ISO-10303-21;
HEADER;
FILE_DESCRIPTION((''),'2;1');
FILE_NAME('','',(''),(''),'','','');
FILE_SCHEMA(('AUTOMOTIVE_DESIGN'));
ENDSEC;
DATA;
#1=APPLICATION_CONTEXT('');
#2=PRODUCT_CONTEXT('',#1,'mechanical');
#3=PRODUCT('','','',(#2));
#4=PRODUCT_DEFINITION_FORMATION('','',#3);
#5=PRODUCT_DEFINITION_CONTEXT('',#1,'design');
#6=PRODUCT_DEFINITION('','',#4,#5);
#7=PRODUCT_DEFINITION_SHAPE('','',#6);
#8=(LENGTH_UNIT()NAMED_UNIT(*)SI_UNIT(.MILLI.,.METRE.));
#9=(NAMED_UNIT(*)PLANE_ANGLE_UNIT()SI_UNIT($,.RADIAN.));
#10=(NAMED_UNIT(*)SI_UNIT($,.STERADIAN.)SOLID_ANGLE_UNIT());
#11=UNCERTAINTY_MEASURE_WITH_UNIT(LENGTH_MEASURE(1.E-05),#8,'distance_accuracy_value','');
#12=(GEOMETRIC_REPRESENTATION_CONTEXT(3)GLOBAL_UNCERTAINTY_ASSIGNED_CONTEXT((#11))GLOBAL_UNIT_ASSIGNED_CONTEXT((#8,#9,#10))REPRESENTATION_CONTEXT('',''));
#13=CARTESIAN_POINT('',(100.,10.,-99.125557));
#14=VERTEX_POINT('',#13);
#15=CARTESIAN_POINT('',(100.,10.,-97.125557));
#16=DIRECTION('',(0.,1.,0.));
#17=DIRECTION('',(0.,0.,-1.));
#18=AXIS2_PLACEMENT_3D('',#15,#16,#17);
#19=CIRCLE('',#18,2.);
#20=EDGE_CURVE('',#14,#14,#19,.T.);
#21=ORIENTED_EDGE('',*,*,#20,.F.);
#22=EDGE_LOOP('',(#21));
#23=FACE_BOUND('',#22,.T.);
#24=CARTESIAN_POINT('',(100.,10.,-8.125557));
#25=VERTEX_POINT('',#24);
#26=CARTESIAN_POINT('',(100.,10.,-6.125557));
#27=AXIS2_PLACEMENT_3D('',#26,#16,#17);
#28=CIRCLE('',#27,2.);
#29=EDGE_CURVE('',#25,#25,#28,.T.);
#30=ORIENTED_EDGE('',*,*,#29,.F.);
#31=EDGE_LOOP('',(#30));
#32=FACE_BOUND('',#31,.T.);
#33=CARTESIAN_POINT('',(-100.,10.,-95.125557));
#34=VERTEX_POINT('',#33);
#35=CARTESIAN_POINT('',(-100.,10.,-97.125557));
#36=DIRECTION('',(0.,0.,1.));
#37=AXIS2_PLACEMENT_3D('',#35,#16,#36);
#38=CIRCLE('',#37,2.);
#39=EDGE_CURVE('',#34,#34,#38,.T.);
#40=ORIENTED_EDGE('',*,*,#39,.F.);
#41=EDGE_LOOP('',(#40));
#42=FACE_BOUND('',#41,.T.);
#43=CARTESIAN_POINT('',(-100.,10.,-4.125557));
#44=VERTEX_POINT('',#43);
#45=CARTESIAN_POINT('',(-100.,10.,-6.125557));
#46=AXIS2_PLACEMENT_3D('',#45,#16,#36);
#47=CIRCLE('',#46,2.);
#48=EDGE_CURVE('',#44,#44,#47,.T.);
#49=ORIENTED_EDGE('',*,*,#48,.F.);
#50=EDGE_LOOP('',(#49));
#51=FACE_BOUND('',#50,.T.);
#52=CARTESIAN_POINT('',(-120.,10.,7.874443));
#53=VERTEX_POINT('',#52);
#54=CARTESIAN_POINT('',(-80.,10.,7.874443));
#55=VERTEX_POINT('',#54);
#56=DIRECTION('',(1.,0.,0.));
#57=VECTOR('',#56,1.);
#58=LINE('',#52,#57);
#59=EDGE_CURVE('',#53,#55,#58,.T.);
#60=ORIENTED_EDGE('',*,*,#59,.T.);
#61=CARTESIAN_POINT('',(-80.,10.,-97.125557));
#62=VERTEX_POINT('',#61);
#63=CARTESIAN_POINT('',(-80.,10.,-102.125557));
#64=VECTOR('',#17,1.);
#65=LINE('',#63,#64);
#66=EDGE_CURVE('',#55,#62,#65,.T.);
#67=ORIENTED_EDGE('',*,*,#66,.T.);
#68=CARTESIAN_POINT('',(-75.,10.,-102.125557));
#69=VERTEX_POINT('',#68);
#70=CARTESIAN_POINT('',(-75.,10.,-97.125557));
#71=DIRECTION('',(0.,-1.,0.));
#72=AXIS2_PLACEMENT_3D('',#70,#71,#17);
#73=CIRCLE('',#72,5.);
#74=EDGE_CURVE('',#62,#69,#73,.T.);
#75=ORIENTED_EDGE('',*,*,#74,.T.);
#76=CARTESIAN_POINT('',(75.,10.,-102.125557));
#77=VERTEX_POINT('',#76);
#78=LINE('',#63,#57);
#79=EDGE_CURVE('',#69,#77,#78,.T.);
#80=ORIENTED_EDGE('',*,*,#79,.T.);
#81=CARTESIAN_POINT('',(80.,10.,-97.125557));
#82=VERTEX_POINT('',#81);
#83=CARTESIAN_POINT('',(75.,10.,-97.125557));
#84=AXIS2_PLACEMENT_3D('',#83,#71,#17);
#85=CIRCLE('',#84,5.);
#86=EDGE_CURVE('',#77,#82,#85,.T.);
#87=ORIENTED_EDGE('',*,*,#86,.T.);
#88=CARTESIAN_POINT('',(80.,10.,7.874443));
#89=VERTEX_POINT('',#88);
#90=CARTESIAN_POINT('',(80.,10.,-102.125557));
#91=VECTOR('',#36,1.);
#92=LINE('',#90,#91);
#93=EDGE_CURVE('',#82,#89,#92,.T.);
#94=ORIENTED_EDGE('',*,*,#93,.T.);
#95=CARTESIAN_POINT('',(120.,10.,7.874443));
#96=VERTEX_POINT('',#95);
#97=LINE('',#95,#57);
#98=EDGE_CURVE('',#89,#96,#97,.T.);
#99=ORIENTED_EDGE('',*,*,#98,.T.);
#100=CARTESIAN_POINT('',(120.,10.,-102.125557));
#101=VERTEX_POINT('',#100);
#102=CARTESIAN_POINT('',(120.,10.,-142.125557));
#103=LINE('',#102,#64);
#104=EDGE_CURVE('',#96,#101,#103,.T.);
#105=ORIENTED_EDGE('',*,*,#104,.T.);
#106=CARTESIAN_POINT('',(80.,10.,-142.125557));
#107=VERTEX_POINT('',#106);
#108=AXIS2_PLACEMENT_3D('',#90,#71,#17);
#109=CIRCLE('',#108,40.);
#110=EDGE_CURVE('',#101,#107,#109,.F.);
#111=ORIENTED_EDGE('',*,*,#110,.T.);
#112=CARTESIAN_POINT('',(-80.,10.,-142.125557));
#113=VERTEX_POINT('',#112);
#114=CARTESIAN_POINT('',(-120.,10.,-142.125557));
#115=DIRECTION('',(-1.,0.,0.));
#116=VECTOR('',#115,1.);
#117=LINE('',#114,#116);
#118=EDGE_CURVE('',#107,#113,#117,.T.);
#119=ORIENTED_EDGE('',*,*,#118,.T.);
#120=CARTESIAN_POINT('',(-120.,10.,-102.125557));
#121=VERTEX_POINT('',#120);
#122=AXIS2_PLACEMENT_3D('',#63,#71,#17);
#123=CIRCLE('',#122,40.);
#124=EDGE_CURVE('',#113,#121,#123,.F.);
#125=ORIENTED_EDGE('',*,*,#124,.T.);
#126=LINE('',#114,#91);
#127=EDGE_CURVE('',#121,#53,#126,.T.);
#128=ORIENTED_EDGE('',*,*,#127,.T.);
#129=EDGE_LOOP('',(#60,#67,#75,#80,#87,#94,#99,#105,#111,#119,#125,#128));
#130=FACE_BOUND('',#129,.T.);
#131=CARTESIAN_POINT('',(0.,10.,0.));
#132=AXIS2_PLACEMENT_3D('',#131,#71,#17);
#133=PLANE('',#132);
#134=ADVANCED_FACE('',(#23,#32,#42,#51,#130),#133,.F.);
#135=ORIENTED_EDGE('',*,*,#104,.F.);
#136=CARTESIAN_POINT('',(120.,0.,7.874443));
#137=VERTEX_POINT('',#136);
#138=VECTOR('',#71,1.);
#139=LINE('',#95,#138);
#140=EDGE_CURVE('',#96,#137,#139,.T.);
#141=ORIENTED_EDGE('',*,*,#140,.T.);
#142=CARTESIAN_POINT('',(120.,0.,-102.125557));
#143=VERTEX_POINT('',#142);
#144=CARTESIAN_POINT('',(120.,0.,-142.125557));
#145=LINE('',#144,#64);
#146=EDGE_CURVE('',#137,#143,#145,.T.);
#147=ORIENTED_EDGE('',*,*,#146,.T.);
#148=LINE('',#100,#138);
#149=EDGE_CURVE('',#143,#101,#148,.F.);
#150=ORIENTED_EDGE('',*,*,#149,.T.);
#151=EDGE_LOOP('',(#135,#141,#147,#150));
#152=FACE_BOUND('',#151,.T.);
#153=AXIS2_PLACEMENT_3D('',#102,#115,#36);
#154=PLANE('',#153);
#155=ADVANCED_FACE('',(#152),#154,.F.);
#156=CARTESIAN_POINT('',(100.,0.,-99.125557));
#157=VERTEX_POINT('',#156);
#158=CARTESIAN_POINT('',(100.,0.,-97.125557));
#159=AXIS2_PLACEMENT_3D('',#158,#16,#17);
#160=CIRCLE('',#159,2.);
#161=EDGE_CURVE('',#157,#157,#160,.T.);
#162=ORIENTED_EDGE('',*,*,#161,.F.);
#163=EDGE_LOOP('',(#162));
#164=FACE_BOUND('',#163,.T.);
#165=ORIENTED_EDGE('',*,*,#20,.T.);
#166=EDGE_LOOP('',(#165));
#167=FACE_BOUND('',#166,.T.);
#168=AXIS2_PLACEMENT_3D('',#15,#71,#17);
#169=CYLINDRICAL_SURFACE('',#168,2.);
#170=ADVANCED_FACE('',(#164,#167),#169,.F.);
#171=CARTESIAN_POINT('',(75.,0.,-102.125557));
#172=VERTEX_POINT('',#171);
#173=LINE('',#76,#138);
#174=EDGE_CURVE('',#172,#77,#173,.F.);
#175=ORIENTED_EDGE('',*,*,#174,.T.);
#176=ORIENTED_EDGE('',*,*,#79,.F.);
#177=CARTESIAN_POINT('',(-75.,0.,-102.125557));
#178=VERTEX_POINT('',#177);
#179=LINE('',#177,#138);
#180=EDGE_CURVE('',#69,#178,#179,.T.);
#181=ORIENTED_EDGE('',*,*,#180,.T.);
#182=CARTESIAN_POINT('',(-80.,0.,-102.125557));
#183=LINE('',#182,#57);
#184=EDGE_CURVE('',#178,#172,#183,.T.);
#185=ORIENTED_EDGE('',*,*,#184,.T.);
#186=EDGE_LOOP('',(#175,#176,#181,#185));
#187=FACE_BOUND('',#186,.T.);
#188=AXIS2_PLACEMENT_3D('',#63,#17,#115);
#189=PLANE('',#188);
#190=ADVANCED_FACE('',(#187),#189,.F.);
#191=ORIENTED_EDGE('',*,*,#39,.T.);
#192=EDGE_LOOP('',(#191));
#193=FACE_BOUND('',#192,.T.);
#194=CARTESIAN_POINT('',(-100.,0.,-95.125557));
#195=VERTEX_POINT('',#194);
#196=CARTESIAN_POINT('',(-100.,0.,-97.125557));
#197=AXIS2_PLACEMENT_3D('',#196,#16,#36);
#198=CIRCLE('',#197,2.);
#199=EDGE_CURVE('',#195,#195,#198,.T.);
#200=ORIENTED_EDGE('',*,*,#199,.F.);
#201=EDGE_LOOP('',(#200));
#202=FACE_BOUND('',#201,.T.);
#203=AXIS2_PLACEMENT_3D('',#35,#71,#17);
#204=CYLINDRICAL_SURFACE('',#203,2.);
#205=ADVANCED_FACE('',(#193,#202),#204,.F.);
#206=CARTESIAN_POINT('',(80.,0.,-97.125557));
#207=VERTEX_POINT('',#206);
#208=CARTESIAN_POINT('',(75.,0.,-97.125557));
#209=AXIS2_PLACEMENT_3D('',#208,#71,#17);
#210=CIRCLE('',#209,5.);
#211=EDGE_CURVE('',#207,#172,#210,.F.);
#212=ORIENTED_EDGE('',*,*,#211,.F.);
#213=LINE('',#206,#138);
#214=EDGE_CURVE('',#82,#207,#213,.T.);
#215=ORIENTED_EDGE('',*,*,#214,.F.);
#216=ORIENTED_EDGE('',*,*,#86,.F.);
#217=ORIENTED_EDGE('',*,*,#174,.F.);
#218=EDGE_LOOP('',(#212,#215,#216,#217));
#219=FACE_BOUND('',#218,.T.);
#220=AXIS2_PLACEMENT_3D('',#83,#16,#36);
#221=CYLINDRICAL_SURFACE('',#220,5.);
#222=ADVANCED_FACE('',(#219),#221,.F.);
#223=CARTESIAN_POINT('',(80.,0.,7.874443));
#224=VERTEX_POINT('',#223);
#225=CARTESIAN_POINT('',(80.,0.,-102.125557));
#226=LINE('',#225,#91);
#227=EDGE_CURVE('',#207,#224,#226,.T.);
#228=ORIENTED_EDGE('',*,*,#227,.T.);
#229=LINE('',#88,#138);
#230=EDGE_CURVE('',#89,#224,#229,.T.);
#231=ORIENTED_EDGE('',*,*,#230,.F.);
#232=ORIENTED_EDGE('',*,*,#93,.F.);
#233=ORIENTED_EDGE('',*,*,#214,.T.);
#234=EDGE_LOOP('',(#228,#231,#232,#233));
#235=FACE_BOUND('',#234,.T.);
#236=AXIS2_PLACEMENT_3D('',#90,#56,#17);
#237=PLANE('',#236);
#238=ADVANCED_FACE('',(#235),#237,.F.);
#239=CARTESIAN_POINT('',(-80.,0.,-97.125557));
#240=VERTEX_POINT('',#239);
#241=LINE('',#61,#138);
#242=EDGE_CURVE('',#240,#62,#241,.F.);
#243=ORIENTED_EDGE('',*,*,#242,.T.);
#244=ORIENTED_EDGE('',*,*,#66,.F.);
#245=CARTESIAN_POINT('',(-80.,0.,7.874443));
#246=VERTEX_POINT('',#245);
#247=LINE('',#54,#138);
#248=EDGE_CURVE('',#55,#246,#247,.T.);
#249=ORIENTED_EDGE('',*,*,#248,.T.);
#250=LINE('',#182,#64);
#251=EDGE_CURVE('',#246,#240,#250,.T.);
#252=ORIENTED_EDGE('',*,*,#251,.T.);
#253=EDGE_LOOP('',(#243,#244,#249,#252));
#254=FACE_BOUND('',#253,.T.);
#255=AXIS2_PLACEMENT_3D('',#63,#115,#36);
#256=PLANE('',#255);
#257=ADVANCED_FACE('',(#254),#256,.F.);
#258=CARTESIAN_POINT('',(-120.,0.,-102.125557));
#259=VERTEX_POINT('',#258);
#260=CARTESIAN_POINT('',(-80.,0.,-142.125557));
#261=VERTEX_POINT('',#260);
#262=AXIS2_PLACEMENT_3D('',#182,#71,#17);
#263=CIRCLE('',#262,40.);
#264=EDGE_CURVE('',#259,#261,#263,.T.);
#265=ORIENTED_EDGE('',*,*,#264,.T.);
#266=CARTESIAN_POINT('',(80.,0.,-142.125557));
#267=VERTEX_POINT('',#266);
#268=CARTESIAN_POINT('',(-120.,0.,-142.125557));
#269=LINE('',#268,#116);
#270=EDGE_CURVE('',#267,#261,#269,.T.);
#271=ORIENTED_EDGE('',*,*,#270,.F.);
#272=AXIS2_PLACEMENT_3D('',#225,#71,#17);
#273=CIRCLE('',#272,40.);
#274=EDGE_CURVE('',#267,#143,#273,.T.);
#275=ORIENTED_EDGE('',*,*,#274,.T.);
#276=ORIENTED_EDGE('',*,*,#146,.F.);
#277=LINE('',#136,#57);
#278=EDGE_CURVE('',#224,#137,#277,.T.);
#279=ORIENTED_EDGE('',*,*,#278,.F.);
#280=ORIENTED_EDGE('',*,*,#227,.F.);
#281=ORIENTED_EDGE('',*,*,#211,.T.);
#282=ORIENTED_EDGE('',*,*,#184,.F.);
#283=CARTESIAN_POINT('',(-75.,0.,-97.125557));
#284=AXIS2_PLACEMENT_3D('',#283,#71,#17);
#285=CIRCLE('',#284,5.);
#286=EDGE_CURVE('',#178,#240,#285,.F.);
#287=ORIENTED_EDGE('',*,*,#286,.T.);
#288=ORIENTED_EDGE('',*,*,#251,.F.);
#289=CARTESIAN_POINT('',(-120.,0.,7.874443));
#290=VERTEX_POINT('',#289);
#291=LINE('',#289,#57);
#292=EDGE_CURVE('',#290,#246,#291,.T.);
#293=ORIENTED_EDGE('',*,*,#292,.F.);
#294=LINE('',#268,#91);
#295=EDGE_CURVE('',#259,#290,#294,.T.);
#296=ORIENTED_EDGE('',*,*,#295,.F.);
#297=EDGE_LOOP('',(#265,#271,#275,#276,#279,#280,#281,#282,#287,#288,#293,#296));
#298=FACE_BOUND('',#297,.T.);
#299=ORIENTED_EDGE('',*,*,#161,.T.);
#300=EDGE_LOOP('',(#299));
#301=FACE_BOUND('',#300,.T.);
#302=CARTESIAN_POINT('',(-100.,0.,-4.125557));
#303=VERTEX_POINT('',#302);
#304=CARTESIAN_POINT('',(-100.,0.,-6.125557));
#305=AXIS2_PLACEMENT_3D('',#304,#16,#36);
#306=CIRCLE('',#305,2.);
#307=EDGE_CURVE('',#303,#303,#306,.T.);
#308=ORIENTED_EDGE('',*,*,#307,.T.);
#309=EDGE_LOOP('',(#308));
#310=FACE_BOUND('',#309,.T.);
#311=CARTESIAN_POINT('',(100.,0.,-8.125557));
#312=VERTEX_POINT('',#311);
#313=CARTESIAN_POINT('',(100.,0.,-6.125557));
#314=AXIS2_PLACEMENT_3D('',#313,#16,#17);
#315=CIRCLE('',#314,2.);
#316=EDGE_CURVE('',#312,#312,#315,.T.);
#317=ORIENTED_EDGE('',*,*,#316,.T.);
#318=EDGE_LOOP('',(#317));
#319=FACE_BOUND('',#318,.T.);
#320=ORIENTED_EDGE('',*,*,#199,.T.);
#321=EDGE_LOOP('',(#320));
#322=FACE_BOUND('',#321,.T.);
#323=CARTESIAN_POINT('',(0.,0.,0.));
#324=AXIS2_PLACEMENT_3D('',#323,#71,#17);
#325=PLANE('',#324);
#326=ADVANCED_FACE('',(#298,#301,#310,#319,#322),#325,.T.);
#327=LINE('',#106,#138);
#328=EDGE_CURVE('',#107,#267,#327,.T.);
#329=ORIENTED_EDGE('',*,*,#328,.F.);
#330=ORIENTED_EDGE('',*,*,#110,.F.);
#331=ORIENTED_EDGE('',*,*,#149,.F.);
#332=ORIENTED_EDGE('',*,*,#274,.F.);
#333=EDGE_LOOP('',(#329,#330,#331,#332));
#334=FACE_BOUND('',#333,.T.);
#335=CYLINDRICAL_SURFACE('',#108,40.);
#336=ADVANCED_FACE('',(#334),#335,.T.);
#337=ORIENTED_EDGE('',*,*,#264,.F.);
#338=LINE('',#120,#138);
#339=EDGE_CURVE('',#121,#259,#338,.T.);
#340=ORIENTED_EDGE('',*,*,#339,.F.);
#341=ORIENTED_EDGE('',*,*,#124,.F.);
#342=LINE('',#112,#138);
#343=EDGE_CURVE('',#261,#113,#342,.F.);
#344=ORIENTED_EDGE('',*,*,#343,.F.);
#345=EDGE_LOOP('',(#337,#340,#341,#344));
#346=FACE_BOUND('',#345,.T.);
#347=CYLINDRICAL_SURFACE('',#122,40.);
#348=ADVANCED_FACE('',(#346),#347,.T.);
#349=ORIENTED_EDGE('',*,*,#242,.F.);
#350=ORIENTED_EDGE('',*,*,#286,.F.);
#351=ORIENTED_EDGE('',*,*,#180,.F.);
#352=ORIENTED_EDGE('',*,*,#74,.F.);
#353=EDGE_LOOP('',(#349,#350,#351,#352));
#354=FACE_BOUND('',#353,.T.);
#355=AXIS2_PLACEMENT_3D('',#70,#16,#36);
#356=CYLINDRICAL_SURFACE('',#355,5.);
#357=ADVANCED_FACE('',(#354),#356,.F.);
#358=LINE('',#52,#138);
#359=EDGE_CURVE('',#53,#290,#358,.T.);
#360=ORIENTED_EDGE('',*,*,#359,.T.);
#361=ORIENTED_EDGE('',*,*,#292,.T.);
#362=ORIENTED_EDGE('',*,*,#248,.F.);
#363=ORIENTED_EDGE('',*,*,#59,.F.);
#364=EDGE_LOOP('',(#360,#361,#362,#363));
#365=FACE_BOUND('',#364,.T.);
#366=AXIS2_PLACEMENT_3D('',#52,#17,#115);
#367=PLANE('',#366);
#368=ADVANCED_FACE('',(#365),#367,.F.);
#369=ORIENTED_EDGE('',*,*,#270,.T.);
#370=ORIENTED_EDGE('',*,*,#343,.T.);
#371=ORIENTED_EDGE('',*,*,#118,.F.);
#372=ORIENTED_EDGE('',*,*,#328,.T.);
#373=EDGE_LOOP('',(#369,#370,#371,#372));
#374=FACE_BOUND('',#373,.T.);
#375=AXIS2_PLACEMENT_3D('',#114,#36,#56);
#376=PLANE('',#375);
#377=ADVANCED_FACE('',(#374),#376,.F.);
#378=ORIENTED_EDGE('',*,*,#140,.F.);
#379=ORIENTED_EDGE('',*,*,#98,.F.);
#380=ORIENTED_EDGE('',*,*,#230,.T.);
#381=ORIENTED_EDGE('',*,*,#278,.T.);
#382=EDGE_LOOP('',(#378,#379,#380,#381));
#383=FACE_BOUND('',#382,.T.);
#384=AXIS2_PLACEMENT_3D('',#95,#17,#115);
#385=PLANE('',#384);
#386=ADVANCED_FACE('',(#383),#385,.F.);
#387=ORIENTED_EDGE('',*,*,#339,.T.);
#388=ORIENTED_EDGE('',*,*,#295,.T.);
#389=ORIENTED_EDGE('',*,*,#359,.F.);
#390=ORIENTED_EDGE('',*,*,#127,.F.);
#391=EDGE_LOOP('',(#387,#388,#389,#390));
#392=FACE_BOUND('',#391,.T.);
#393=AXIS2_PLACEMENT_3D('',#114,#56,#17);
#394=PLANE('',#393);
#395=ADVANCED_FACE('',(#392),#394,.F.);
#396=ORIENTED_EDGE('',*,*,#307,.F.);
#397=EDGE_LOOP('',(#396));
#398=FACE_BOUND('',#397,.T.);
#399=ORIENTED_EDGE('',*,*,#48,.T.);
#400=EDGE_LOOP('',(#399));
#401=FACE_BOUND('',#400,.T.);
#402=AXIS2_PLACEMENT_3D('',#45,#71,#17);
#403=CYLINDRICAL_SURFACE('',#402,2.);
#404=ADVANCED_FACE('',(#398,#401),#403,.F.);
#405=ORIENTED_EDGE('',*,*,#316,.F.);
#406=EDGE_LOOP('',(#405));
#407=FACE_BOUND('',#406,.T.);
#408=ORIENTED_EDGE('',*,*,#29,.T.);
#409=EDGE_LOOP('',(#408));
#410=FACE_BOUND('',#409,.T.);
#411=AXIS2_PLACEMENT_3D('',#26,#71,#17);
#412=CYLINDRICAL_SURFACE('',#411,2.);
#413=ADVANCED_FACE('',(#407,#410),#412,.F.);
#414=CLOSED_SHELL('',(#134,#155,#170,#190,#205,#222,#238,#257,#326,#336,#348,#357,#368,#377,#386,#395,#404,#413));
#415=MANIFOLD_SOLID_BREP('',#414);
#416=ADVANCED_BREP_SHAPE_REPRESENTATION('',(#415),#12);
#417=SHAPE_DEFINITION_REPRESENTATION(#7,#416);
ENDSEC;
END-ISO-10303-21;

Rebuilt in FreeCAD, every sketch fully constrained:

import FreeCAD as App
import Part
import Sketcher
from FreeCAD import Vector
Q = App.Units.Quantity


def edges_at(feature, points):
    """Names of the edges that pass closest to the given points."""
    edges = feature.Shape.Edges
    near = lambda p: min(range(len(edges)), key=lambda i: edges[i].distToShape(Part.Vertex(*p))[0])
    return sorted({f"Edge{near(p) + 1}" for p in points})


def add_polygon(sketch, points):
    """Adds a closed chain of lines whose ends are joined by coincident constraints."""
    first, n = sketch.GeometryCount, len(points)
    for a, b in zip(points, points[1:] + points[:1]):
        sketch.addGeometry(Part.LineSegment(App.Vector(*a, 0), App.Vector(*b, 0)), False)
    for i in range(n):
        sketch.addConstraint(Sketcher.Constraint("Coincident", first + i, 2, first + (i + 1) % n, 1))

doc = App.newDocument("Part")
params = doc.addObject("Spreadsheet::Sheet", "Params")
for row, (alias, value) in enumerate([
    ("sketch1_diameter", "4 mm"),
    ("sketch1_width", "40 mm"),
    ("sketch1_width2", "160 mm"),
    ("sketch1_height", "150 mm"),
    ("sketch1_height2", "110 mm"),
    ("pad1_length", "10 mm"),
    ("fillet_radius", "40 mm"),
    ("fillet2_radius", "5 mm"),
], start=1):
    params.set(f"A{row}", alias)
    params.set(f"B{row}", "=" + value)
    params.setAlias(f"B{row}", alias)

body = doc.addObject("PartDesign::Body", "Body")

# Sketch on XZ plane
sketch1 = body.newObject("Sketcher::SketchObject", "Sketch")
sketch1.AttachmentSupport = (doc.getObject("XZ_Plane"), [""])
sketch1.MapMode = "FlatFace"
add_polygon(sketch1, [(-120, -142.1), (-120, 7.9), (-80, 7.9), (-80, -102.1), (80, -102.1), (80, 7.9), (120, 7.9), (120, -142.1)])  # lines 0-7
sketch1.addGeometry(Part.Circle(Vector(-100, -6.1, 0), Vector(0, 0, 1), 2), False)  # 8
sketch1.addGeometry(Part.Circle(Vector(100, -6.1, 0), Vector(0, 0, 1), 2), False)  # 9
sketch1.addGeometry(Part.Circle(Vector(-100, -97.1, 0), Vector(0, 0, 1), 2), False)  # 10
sketch1.addGeometry(Part.Circle(Vector(100, -97.1, 0), Vector(0, 0, 1), 2), False)  # 11
sketch1.addConstraint([
    Sketcher.Constraint("Vertical", 0),
    Sketcher.Constraint("Horizontal", 1),
    Sketcher.Constraint("Vertical", 2),
    Sketcher.Constraint("Horizontal", 3),
    Sketcher.Constraint("Vertical", 4),
    Sketcher.Constraint("Horizontal", 5),
    Sketcher.Constraint("Vertical", 6),
    Sketcher.Constraint("Horizontal", 7),
    Sketcher.Constraint("Equal", 8, 9),
    Sketcher.Constraint("Equal", 9, 10),
    Sketcher.Constraint("Equal", 10, 11),
    Sketcher.Constraint("Symmetric", 8, 3, 9, 3, -2),
    Sketcher.Constraint("Symmetric", 10, 3, 11, 3, -2),
    Sketcher.Constraint("Symmetric", 1, 2, 4, 2, -2),
    Sketcher.Constraint("Vertical", 8, 3, 10, 3),
    Sketcher.Constraint("Equal", 1, 5),
    Sketcher.Constraint("Diameter", 8, Q("4 mm")),
    Sketcher.Constraint("DistanceX", 1, 1, 1, 2, Q("40 mm")),
    Sketcher.Constraint("DistanceX", 3, 1, 3, 2, Q("160 mm")),
    Sketcher.Constraint("DistanceY", 0, 1, 0, 2, Q("150 mm")),
    Sketcher.Constraint("DistanceY", 2, 2, 2, 1, Q("110 mm")),
    Sketcher.Constraint("DistanceX", 8, 3, -1, 1, Q("100 mm")),
    Sketcher.Constraint("DistanceY", 10, 3, 8, 3, Q("91 mm")),
    Sketcher.Constraint("DistanceY", 8, 3, 0, 2, Q("14 mm")),
    Sketcher.Constraint("DistanceY", 8, 3, -1, 1, Q("6.125557 mm")),
])
sketch1.setExpression("Constraints[24]", "Params.sketch1_diameter")
sketch1.setExpression("Constraints[25]", "Params.sketch1_width")
sketch1.setExpression("Constraints[26]", "Params.sketch1_width2")
sketch1.setExpression("Constraints[27]", "Params.sketch1_height")
sketch1.setExpression("Constraints[28]", "Params.sketch1_height2")
pad1 = body.newObject("PartDesign::Pad", "Pad")
pad1.Profile = sketch1
pad1.setExpression("Length", "Params.pad1_length")
pad1.Reversed = True
doc.recompute()

fillet = body.newObject("PartDesign::Fillet", "Fillet")
fillet.Base = (pad1, edges_at(pad1, [(-120, 5, -142.126), (120, 5, -142.126)]))
fillet.setExpression("Radius", "Params.fillet_radius")
doc.recompute()

fillet2 = body.newObject("PartDesign::Fillet", "Fillet001")
fillet2.Base = (fillet, edges_at(fillet, [(80, 5, -102.126), (-80, 5, -102.126)]))
fillet2.setExpression("Radius", "Params.fillet2_radius")

doc.recompute()
